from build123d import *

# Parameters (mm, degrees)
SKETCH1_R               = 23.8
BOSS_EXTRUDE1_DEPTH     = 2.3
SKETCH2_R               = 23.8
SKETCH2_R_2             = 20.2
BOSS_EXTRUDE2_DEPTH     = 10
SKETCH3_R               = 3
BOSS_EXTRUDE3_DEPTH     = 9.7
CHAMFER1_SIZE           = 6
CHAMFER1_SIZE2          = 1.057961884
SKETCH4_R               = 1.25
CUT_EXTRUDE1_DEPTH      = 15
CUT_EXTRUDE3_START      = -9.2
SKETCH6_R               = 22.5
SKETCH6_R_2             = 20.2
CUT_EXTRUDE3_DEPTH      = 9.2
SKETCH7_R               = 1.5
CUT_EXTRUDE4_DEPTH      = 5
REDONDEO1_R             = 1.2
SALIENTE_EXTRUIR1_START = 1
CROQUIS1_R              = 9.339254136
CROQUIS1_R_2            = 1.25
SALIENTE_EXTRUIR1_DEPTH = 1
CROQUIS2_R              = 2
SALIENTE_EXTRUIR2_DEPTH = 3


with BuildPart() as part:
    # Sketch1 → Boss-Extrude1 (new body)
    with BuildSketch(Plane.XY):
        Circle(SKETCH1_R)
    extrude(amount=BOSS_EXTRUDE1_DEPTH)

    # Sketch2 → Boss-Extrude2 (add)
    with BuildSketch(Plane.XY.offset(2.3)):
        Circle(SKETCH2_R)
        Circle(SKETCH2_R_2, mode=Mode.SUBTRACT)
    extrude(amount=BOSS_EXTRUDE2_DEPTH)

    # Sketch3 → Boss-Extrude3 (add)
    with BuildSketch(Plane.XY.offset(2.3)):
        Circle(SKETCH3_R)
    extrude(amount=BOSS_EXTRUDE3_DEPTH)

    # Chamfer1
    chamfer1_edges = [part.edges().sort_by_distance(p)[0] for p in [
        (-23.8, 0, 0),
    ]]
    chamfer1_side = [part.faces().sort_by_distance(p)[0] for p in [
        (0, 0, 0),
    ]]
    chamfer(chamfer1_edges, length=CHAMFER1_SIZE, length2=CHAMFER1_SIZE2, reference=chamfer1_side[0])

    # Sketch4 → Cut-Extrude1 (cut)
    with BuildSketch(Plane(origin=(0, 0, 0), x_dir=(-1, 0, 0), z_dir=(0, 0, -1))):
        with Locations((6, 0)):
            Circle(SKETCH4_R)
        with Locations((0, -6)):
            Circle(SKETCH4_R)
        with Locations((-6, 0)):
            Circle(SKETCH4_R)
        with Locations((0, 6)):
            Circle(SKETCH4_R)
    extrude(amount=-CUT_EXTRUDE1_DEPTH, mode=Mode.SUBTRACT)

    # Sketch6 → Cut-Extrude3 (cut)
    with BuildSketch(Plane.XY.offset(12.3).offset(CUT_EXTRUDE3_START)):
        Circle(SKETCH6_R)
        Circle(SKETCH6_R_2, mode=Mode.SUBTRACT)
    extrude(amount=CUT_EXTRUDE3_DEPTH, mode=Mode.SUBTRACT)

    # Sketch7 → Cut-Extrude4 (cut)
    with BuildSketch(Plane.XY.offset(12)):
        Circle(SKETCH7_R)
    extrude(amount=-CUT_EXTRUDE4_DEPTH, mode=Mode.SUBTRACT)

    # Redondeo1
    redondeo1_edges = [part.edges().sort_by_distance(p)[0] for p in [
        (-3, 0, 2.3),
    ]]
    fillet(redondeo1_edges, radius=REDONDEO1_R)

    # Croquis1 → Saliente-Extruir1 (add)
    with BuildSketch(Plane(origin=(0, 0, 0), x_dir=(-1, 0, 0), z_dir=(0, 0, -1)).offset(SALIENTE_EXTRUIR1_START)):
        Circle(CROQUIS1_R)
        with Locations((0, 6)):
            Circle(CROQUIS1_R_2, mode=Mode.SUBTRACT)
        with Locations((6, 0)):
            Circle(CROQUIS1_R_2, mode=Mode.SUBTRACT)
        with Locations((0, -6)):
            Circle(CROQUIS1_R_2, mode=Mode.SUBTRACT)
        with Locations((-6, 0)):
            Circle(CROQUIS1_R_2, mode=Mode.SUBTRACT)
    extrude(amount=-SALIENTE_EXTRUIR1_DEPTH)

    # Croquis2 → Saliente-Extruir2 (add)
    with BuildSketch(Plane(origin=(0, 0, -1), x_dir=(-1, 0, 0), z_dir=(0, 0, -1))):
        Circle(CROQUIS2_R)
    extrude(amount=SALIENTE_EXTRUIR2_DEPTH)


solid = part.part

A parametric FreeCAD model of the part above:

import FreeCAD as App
import Part
import Sketcher


def edges_at(feature, points):
    """Names of the edges that pass closest to the given points."""
    edges = feature.Shape.Edges
    near = lambda p: min(range(len(edges)), key=lambda i: edges[i].distToShape(Part.Vertex(*p))[0])
    return sorted({f"Edge{near(p) + 1}" for p in points})

doc = App.newDocument("Part")
body = doc.addObject("PartDesign::Body", "Body")

sketch1 = doc.addObject("Sketcher::SketchObject", "Sketch")
body.addObject(sketch1)
sketch1.AttachmentSupport = (doc.XY_Plane, [""])
sketch1.MapMode = "FlatFace"
sketch1.addGeometry(Part.Circle(App.Vector(0, 0, 0), App.Vector(0, 0, 1), 24), False)
sketch1.addConstraint([
    Sketcher.Constraint("Coincident", 0, 3, -1, 1),
    Sketcher.Constraint("Diameter", 0, 47.6),
])
pad1 = doc.addObject("PartDesign::Pad", "Pad")
body.addObject(pad1)
pad1.Profile = sketch1
pad1.Length = 2.3

sketch2 = doc.addObject("Sketcher::SketchObject", "Sketch001")
body.addObject(sketch2)
sketch2.AttachmentSupport = (doc.XY_Plane, [""])
sketch2.MapMode = "FlatFace"
sketch2.AttachmentOffset = App.Placement(App.Vector(0, 0, 2.3), App.Rotation())
sketch2.addGeometry([
    Part.Circle(App.Vector(0, 0, 0), App.Vector(0, 0, 1), 24),
    Part.Circle(App.Vector(0, 0, 0), App.Vector(0, 0, 1), 20),
], False)
sketch2.addConstraint([
    Sketcher.Constraint("Coincident", 0, 3, -1, 1),
    Sketcher.Constraint("Coincident", 1, 3, -1, 1),
    Sketcher.Constraint("Diameter", 0, 47.6),
    Sketcher.Constraint("Diameter", 1, 40.4),
])
pad2 = doc.addObject("PartDesign::Pad", "Pad001")
body.addObject(pad2)
pad2.Profile = sketch2
pad2.Length = 10

sketch3 = doc.addObject("Sketcher::SketchObject", "Sketch002")
body.addObject(sketch3)
sketch3.AttachmentSupport = (doc.XY_Plane, [""])
sketch3.MapMode = "FlatFace"
sketch3.AttachmentOffset = App.Placement(App.Vector(0, 0, 2.3), App.Rotation())
sketch3.addGeometry(Part.Circle(App.Vector(0, 0, 0), App.Vector(0, 0, 1), 3), False)
sketch3.addConstraint([
    Sketcher.Constraint("Coincident", 0, 3, -1, 1),
    Sketcher.Constraint("Diameter", 0, 6.0),
])
pad3 = doc.addObject("PartDesign::Pad", "Pad002")
body.addObject(pad3)
pad3.Profile = sketch3
pad3.Length = 9.7
doc.recompute()

chamfer = doc.addObject("PartDesign::Chamfer", "Chamfer")
body.addObject(chamfer)
chamfer.Base = (pad3, edges_at(pad3, [(-23.8, 0, 0)]))
chamfer.ChamferType = "Two distances"
chamfer.Size = 6
chamfer.Size2 = 1.057962
chamfer.FlipDirection = True

sketch4 = doc.addObject("Sketcher::SketchObject", "Sketch003")
body.addObject(sketch4)
sketch4.AttachmentSupport = (doc.XY_Plane, [""])
sketch4.MapMode = "FlatFace"
sketch4.addGeometry([
    Part.Circle(App.Vector(-6, 0, 0), App.Vector(0, 0, 1), 1.2),
    Part.Circle(App.Vector(0, -6, 0), App.Vector(0, 0, 1), 1.2),
    Part.Circle(App.Vector(6, 0, 0), App.Vector(0, 0, 1), 1.2),
    Part.Circle(App.Vector(0, 6, 0), App.Vector(0, 0, 1), 1.2),
], False)
sketch4.addConstraint([
    Sketcher.Constraint("Equal", 0, 1),
    Sketcher.Constraint("Equal", 1, 2),
    Sketcher.Constraint("Equal", 2, 3),
    Sketcher.Constraint("Symmetric", 0, 3, 2, 3, -1, 1),
    Sketcher.Constraint("Symmetric", 1, 3, 3, 3, -1, 1),
    Sketcher.Constraint("PointOnObject", 0, 3, -1),
    Sketcher.Constraint("PointOnObject", 1, 3, -2),
    Sketcher.Constraint("Diameter", 0, 2.5),
    Sketcher.Constraint("DistanceX", 0, 3, -1, 1, 6.0),
    Sketcher.Constraint("DistanceY", 1, 3, -1, 1, 6.0),
])
pocket1 = doc.addObject("PartDesign::Pocket", "Pocket")
body.addObject(pocket1)
pocket1.Profile = sketch4
pocket1.Length = 15
pocket1.Reversed = True

sketch5 = doc.addObject("Sketcher::SketchObject", "Sketch004")
body.addObject(sketch5)
sketch5.AttachmentSupport = (doc.XY_Plane, [""])
sketch5.MapMode = "FlatFace"
sketch5.AttachmentOffset = App.Placement(App.Vector(0, 0, 3.1), App.Rotation())
sketch5.addGeometry([
    Part.Circle(App.Vector(0, 0, 0), App.Vector(0, 0, 1), 22),
    Part.Circle(App.Vector(0, 0, 0), App.Vector(0, 0, 1), 20),
], False)
sketch5.addConstraint([
    Sketcher.Constraint("Coincident", 0, 3, -1, 1),
    Sketcher.Constraint("Coincident", 1, 3, -1, 1),
    Sketcher.Constraint("Diameter", 0, 45.0),
    Sketcher.Constraint("Diameter", 1, 40.4),
])
pocket2 = doc.addObject("PartDesign::Pocket", "Pocket001")
body.addObject(pocket2)
pocket2.Profile = sketch5
pocket2.Length = 9.2
pocket2.Reversed = True

sketch6 = doc.addObject("Sketcher::SketchObject", "Sketch005")
body.addObject(sketch6)
sketch6.AttachmentSupport = (doc.XY_Plane, [""])
sketch6.MapMode = "FlatFace"
sketch6.AttachmentOffset = App.Placement(App.Vector(0, 0, 12), App.Rotation())
sketch6.addGeometry(Part.Circle(App.Vector(0, 0, 0), App.Vector(0, 0, 1), 1.5), False)
sketch6.addConstraint([
    Sketcher.Constraint("Coincident", 0, 3, -1, 1),
    Sketcher.Constraint("Diameter", 0, 3.0),
])
pocket3 = doc.addObject("PartDesign::Pocket", "Pocket002")
body.addObject(pocket3)
pocket3.Profile = sketch6
pocket3.Length = 5
doc.recompute()

fillet = doc.addObject("PartDesign::Fillet", "Fillet")
body.addObject(fillet)
fillet.Base = (pocket3, edges_at(pocket3, [(-3, 0, 2.3)]))
fillet.Radius = 1.2

sketch7 = doc.addObject("Sketcher::SketchObject", "Sketch006")
body.addObject(sketch7)
sketch7.AttachmentSupport = (doc.XY_Plane, [""])
sketch7.MapMode = "FlatFace"
sketch7.AttachmentOffset = App.Placement(App.Vector(0, 0, -1), App.Rotation())
sketch7.addGeometry([
    Part.Circle(App.Vector(0, 0, 0), App.Vector(0, 0, 1), 9.3),
    Part.Circle(App.Vector(0, -6, 0), App.Vector(0, 0, 1), 1.2),
    Part.Circle(App.Vector(6, 0, 0), App.Vector(0, 0, 1), 1.2),
    Part.Circle(App.Vector(-6, 0, 0), App.Vector(0, 0, 1), 1.2),
    Part.Circle(App.Vector(0, 6, 0), App.Vector(0, 0, 1), 1.2),
], False)
sketch7.addConstraint([
    Sketcher.Constraint("Coincident", 0, 3, -1, 1),
    Sketcher.Constraint("Equal", 1, 2),
    Sketcher.Constraint("Equal", 2, 3),
    Sketcher.Constraint("Equal", 3, 4),
    Sketcher.Constraint("Symmetric", 2, 3, 3, 3, -1, 1),
    Sketcher.Constraint("Symmetric", 1, 3, 4, 3, -1, 1),
    Sketcher.Constraint("PointOnObject", 1, 3, -2),
    Sketcher.Constraint("PointOnObject", 2, 3, -1),
    Sketcher.Constraint("Diameter", 1, 2.5),
    Sketcher.Constraint("DistanceY", 1, 3, -1, 1, 6.0),
    Sketcher.Constraint("DistanceX", -1, 1, 2, 3, 6.0),
    Sketcher.Constraint("Diameter", 0, 18.678508),
])
pad4 = doc.addObject("PartDesign::Pad", "Pad003")
body.addObject(pad4)
pad4.Profile = sketch7
pad4.Length = 1

sketch8 = doc.addObject("Sketcher::SketchObject", "Sketch007")
body.addObject(sketch8)
sketch8.AttachmentSupport = (doc.XY_Plane, [""])
sketch8.MapMode = "FlatFace"
sketch8.AttachmentOffset = App.Placement(App.Vector(0, 0, -1), App.Rotation())
sketch8.addGeometry(Part.Circle(App.Vector(0, 0, 0), App.Vector(0, 0, 1), 2), False)
sketch8.addConstraint([
    Sketcher.Constraint("Coincident", 0, 3, -1, 1),
    Sketcher.Constraint("Diameter", 0, 4.0),
])
pad5 = doc.addObject("PartDesign::Pad", "Pad004")
body.addObject(pad5)
pad5.Profile = sketch8
pad5.Length = 3
pad5.Reversed = True

doc.recompute()
